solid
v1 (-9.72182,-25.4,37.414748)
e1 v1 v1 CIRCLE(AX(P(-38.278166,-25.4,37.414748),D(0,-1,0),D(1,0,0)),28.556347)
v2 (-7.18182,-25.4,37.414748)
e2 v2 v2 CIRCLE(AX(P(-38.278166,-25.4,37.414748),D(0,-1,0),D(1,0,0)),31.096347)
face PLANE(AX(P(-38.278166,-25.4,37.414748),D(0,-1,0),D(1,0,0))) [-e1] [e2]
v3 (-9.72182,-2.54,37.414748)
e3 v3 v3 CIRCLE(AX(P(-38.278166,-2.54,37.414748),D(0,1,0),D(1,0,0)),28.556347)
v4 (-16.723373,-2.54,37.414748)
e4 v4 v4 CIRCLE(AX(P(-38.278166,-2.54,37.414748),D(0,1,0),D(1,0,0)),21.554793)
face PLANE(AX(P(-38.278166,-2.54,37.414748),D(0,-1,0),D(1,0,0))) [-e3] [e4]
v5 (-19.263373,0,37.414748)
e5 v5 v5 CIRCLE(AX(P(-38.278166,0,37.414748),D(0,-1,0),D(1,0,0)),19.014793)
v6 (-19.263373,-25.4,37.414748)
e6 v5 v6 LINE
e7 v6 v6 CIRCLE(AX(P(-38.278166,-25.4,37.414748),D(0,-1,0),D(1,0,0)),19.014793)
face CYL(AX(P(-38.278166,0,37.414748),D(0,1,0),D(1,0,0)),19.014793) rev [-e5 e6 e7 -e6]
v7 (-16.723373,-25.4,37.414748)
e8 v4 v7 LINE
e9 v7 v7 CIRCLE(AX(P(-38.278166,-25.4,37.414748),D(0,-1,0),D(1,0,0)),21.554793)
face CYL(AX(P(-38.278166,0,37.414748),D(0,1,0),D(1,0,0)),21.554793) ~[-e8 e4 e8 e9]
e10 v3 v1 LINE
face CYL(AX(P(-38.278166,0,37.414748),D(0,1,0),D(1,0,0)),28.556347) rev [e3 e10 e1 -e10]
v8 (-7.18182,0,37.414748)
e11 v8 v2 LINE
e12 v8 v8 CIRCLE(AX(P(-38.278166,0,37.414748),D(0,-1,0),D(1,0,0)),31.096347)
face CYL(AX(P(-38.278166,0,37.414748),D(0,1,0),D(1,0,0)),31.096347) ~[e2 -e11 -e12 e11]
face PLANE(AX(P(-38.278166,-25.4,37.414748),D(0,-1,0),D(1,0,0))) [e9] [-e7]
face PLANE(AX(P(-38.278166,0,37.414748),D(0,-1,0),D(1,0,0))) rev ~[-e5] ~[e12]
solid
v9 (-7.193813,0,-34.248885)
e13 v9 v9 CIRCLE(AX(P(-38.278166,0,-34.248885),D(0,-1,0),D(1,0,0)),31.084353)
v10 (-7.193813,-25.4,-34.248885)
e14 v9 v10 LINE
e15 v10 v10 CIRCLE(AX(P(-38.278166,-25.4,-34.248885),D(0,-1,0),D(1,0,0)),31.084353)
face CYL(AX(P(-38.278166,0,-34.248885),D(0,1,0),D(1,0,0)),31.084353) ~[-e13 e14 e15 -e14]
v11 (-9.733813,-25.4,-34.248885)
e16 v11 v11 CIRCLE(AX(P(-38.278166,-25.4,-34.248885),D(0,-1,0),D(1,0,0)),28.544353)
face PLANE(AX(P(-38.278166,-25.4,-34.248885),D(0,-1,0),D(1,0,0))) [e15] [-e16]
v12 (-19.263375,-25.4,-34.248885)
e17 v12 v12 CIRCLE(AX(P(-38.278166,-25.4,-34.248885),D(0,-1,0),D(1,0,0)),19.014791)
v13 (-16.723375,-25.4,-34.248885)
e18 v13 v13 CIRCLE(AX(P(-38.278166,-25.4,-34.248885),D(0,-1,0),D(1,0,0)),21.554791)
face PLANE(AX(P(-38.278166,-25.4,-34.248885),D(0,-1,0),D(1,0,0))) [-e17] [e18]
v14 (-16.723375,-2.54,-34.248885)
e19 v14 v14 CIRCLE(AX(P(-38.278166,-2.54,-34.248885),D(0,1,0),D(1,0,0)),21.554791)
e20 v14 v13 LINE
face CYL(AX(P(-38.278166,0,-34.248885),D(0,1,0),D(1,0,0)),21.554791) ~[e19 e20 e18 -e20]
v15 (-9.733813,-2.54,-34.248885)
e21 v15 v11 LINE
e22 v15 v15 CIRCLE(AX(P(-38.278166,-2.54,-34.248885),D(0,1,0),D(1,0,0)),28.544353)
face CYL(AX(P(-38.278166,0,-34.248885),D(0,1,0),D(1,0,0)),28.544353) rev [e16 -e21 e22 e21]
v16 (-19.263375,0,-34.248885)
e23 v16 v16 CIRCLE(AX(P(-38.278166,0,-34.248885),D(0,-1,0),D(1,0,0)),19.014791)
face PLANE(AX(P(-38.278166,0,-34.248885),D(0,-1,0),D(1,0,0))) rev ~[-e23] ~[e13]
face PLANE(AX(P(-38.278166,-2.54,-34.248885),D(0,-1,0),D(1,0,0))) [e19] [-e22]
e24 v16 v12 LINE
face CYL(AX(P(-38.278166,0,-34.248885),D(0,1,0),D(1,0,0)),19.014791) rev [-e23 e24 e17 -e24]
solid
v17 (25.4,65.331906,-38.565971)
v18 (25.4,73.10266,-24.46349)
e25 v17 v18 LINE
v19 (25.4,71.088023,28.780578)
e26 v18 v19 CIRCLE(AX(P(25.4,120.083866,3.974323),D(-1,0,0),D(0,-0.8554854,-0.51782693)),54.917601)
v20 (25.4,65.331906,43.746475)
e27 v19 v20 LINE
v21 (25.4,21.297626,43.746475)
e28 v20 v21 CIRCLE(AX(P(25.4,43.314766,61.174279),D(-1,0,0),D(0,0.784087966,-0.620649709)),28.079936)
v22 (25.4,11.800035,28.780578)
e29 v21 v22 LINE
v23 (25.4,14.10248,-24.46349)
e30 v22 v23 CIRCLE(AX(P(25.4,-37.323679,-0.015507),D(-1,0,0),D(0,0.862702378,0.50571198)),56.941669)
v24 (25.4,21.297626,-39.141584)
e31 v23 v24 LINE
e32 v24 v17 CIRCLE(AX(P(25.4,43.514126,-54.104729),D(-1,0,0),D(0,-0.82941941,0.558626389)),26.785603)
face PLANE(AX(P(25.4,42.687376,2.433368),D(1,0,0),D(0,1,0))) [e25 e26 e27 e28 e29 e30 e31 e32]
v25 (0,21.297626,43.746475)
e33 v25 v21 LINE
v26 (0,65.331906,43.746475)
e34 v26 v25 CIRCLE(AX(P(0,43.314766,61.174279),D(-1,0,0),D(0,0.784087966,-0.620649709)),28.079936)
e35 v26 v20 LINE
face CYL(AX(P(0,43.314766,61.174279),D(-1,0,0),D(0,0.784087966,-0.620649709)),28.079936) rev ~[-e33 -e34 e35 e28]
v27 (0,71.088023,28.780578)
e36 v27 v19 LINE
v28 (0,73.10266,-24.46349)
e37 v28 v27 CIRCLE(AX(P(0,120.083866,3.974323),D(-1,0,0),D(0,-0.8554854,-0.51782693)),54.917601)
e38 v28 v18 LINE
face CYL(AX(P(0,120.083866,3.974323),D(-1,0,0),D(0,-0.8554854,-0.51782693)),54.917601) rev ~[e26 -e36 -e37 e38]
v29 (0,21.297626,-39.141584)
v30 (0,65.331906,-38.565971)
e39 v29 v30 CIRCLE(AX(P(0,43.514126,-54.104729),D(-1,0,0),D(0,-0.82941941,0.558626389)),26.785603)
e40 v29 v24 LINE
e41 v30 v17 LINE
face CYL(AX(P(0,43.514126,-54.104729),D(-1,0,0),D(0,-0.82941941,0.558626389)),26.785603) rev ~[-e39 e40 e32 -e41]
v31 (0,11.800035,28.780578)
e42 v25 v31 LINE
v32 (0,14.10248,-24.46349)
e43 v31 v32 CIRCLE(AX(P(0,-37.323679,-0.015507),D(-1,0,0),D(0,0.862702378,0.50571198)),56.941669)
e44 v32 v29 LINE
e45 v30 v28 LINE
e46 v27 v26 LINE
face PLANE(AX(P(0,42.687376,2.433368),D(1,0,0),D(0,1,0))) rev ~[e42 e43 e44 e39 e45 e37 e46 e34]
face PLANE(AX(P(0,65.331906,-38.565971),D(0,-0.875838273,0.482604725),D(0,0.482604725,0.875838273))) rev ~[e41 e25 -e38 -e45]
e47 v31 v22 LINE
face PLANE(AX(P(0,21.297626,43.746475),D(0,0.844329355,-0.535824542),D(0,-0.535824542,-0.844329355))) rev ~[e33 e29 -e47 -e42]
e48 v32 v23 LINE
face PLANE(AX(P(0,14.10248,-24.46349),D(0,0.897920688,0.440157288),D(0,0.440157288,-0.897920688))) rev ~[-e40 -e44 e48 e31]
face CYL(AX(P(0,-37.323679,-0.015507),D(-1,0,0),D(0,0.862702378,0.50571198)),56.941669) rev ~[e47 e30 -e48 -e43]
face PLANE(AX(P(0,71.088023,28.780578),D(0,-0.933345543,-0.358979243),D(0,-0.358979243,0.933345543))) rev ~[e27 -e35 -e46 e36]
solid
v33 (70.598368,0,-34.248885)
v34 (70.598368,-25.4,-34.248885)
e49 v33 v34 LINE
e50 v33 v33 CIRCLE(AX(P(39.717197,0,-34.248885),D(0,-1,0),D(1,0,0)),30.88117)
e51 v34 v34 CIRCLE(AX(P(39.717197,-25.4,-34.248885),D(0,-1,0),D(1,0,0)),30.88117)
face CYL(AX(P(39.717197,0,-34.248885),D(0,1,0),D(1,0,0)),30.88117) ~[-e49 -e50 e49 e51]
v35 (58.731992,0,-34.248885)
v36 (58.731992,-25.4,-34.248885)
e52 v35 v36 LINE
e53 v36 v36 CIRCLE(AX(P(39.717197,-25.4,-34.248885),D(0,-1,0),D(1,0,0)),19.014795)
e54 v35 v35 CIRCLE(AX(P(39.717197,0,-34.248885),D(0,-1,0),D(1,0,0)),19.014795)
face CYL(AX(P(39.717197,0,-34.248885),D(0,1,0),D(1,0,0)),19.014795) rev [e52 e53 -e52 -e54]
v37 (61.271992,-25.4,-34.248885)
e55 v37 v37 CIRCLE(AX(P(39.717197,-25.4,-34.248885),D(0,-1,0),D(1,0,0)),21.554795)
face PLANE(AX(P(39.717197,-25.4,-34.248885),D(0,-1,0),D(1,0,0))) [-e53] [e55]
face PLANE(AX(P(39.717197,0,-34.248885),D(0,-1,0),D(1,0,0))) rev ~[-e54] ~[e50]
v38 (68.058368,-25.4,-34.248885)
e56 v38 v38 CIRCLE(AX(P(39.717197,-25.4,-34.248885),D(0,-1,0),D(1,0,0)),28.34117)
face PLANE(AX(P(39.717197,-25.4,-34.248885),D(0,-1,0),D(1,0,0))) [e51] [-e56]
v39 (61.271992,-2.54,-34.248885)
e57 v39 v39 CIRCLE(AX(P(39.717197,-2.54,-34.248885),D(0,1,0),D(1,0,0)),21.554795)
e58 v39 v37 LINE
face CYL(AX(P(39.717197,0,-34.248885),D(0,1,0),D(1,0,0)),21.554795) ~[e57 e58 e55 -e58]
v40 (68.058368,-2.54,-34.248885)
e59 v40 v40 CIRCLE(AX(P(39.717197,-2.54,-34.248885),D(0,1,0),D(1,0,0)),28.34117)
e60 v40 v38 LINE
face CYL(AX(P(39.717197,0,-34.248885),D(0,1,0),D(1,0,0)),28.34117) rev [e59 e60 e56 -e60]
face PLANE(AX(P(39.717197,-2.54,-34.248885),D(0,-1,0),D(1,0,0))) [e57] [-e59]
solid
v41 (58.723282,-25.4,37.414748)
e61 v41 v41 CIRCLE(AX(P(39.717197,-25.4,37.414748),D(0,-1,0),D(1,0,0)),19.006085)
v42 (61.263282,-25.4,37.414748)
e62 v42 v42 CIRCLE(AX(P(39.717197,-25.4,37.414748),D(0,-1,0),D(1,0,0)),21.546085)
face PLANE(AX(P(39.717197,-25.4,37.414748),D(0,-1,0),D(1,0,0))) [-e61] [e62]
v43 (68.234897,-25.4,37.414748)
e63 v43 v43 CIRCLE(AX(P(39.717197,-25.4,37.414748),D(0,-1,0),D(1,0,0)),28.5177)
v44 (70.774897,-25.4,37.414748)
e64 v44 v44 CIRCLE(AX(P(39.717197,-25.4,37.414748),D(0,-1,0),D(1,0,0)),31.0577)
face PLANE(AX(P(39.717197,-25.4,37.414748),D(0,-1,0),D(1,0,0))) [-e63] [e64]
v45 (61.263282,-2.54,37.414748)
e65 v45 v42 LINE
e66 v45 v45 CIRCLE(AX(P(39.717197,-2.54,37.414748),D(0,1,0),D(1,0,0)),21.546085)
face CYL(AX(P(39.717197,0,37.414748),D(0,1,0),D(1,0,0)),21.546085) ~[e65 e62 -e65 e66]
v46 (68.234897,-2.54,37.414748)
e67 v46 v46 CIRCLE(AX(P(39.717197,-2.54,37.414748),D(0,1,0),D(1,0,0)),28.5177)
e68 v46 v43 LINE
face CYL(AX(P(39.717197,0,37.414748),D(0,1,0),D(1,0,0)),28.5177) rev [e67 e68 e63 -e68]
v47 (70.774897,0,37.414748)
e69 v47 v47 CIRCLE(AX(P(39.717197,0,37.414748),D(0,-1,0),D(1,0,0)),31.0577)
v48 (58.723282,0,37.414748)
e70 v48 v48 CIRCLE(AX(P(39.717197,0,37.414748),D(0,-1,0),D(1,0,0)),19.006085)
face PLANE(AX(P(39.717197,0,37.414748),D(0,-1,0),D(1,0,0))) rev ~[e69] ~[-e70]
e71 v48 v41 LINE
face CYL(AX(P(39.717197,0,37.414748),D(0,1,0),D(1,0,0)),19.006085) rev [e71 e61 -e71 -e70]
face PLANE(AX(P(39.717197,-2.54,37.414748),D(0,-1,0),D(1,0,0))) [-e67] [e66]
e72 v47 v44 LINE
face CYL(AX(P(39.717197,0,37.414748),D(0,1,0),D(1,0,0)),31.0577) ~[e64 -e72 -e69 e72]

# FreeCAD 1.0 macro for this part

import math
import FreeCAD as App
import Part
import Sketcher
Q = App.Units.Quantity


def faces_at(feature, points):
    """Names of the faces that lie closest to the given points."""
    faces = feature.Shape.Faces
    near = lambda p: min(range(len(faces)), key=lambda i: faces[i].distToShape(Part.Vertex(*p))[0])
    return sorted({f"Face{near(p) + 1}" for p in points})

doc = App.newDocument("Part")
body = doc.addObject("PartDesign::Body", "Body")

sketch1 = doc.addObject("Sketcher::SketchObject", "Sketch")
body.addObject(sketch1)
sketch1.AttachmentSupport = (doc.XZ_Plane, [""])
sketch1.MapMode = "FlatFace"
sketch1.addGeometry(Part.Circle(App.Vector(-38, 37, 0), App.Vector(0, 0, 1), 31), False)
sketch1.addGeometry(Part.Circle(App.Vector(-38, 37, 0), App.Vector(0, 0, 1), 19), False)
sketch1.addConstraint(Sketcher.Constraint("Coincident", 1, 3, 0, 3))
sketch1.addConstraint(Sketcher.Constraint("Diameter", 0, 62.192693))
sketch1.addConstraint(Sketcher.Constraint("Diameter", 1, 38.029586))
sketch1.addConstraint(Sketcher.Constraint("DistanceY", -1, 1, 0, 3, 37.414748))
sketch1.addConstraint(Sketcher.Constraint("DistanceX", 0, 3, -1, 1, 38.278166))
pad1 = doc.addObject("PartDesign::Pad", "Pad")
body.addObject(pad1)
pad1.Profile = sketch1
pad1.Length = Q("1 in")
doc.recompute()

thickness = doc.addObject("PartDesign::Thickness", "Thickness")
body.addObject(thickness)
thickness.Base = (pad1, faces_at(pad1, [(-63.155, -25.4, 37.415)]))
thickness.Value = Q("0.1 in")
thickness.Reversed = True
thickness.Join = "Arc"
body2 = doc.addObject("PartDesign::Body", "Body001")

sketch2 = doc.addObject("Sketcher::SketchObject", "Sketch001")
body2.addObject(sketch2)
sketch2.AttachmentSupport = (doc.getObject("XZ_Plane001"), [""])
sketch2.MapMode = "FlatFace"
sketch2.addGeometry(Part.Circle(App.Vector(40, 37, 0), App.Vector(0, 0, 1), 31), False)
sketch2.addGeometry(Part.Circle(App.Vector(40, 37, 0), App.Vector(0, 0, 1), 19), False)
sketch2.addConstraint(Sketcher.Constraint("Coincident", 1, 3, 0, 3))
sketch2.addConstraint(Sketcher.Constraint("Diameter", 0, 62.115399))
sketch2.addConstraint(Sketcher.Constraint("Diameter", 1, 38.012169))
sketch2.addConstraint(Sketcher.Constraint("DistanceY", -1, 1, 0, 3, 37.414748))
sketch2.addConstraint(Sketcher.Constraint("DistanceX", -1, 1, 0, 3, 39.717197))
pad2 = doc.addObject("PartDesign::Pad", "Pad001")
body2.addObject(pad2)
pad2.Profile = sketch2
pad2.Length = Q("1 in")
doc.recompute()

thickness2 = doc.addObject("PartDesign::Thickness", "Thickness001")
body2.addObject(thickness2)
thickness2.Base = (pad2, faces_at(pad2, [(14.871, -25.4, 37.415)]))
thickness2.Value = Q("0.1 in")
thickness2.Reversed = True
thickness2.Join = "Arc"
body3 = doc.addObject("PartDesign::Body", "Body002")

sketch3 = doc.addObject("Sketcher::SketchObject", "Sketch002")
body3.addObject(sketch3)
sketch3.AttachmentSupport = (doc.getObject("XZ_Plane002"), [""])
sketch3.MapMode = "FlatFace"
sketch3.addGeometry(Part.Circle(App.Vector(40, -34, 0), App.Vector(0, 0, 1), 31), False)
sketch3.addGeometry(Part.Circle(App.Vector(40, -34, 0), App.Vector(0, 0, 1), 19), False)
sketch3.addConstraint(Sketcher.Constraint("Coincident", 1, 3, 0, 3))
sketch3.addConstraint(Sketcher.Constraint("Diameter", 0, 61.762341))
sketch3.addConstraint(Sketcher.Constraint("Diameter", 1, 38.02959))
sketch3.addConstraint(Sketcher.Constraint("DistanceX", -1, 1, 0, 3, 39.717197))
sketch3.addConstraint(Sketcher.Constraint("DistanceY", 0, 3, -1, 1, 34.248885))
pad3 = doc.addObject("PartDesign::Pad", "Pad002")
body3.addObject(pad3)
pad3.Profile = sketch3
pad3.Length = Q("1 in")
doc.recompute()

thickness3 = doc.addObject("PartDesign::Thickness", "Thickness002")
body3.addObject(thickness3)
thickness3.Base = (pad3, faces_at(pad3, [(15.012, -25.4, -34.249)]))
thickness3.Value = Q("0.1 in")
thickness3.Reversed = True
thickness3.Join = "Arc"
body4 = doc.addObject("PartDesign::Body", "Body003")

sketch4 = doc.addObject("Sketcher::SketchObject", "Sketch003")
body4.addObject(sketch4)
sketch4.AttachmentSupport = (doc.getObject("XZ_Plane003"), [""])
sketch4.MapMode = "FlatFace"
sketch4.addGeometry(Part.Circle(App.Vector(-38, -34, 0), App.Vector(0, 0, 1), 31), False)
sketch4.addGeometry(Part.Circle(App.Vector(-38, -34, 0), App.Vector(0, 0, 1), 19), False)
sketch4.addConstraint(Sketcher.Constraint("Coincident", 1, 3, 0, 3))
sketch4.addConstraint(Sketcher.Constraint("Diameter", 0, 62.168706))
sketch4.addConstraint(Sketcher.Constraint("Diameter", 1, 38.029583))
sketch4.addConstraint(Sketcher.Constraint("DistanceX", 0, 3, -1, 1, 38.278166))
sketch4.addConstraint(Sketcher.Constraint("DistanceY", 0, 3, -1, 1, 34.248885))
pad4 = doc.addObject("PartDesign::Pad", "Pad003")
body4.addObject(pad4)
pad4.Profile = sketch4
pad4.Length = Q("1 in")
doc.recompute()

thickness4 = doc.addObject("PartDesign::Thickness", "Thickness003")
body4.addObject(thickness4)
thickness4.Base = (pad4, faces_at(pad4, [(-63.146, -25.4, -34.249)]))
thickness4.Value = Q("0.1 in")
thickness4.Reversed = True
thickness4.Join = "Arc"
body5 = doc.addObject("PartDesign::Body", "Body004")

sketch5 = doc.addObject("Sketcher::SketchObject", "Sketch004")
body5.addObject(sketch5)
sketch5.AttachmentSupport = (doc.getObject("YZ_Plane004"), [""])
sketch5.MapMode = "FlatFace"
sketch5.addGeometry(Part.ArcOfCircle(Part.Circle(App.Vector(43, 61, 0), App.Vector(0, 0, 1), 28), math.radians(-142), math.radians(-38)), False)
sketch5.addGeometry(Part.LineSegment(App.Vector(21, 44, 0), App.Vector(12, 29, 0)), False)
sketch5.addGeometry(Part.ArcOfCircle(Part.Circle(App.Vector(-37, 0, 0), App.Vector(0, 0, 1), 57), math.radians(-25), math.radians(30)), False)
sketch5.addGeometry(Part.LineSegment(App.Vector(14, -24, 0), App.Vector(21, -39, 0)), False)
sketch5.addGeometry(Part.ArcOfCircle(Part.Circle(App.Vector(44, -54, 0), App.Vector(0, 0, 1), 27), math.radians(35), math.radians(146)), False)
sketch5.addGeometry(Part.LineSegment(App.Vector(65, -39, 0), App.Vector(73, -24, 0)), False)
sketch5.addGeometry(Part.ArcOfCircle(Part.Circle(App.Vector(120, 4, 0), App.Vector(0, 0, 1), 55), math.radians(153), math.radians(211)), False)
sketch5.addGeometry(Part.LineSegment(App.Vector(71, 29, 0), App.Vector(65, 44, 0)), False)
sketch5.addConstraint(Sketcher.Constraint("Coincident", 0, 1, 1, 1))
sketch5.addConstraint(Sketcher.Constraint("Coincident", 1, 2, 2, 2))
sketch5.addConstraint(Sketcher.Constraint("Coincident", 2, 1, 3, 1))
sketch5.addConstraint(Sketcher.Constraint("Coincident", 3, 2, 4, 2))
sketch5.addConstraint(Sketcher.Constraint("Coincident", 4, 1, 5, 1))
sketch5.addConstraint(Sketcher.Constraint("Coincident", 5, 2, 6, 2))
sketch5.addConstraint(Sketcher.Constraint("Coincident", 6, 1, 7, 1))
sketch5.addConstraint(Sketcher.Constraint("Coincident", 7, 2, 0, 2))
sketch5.addConstraint(Sketcher.Constraint("Horizontal", 2, 1, 5, 2))
sketch5.addConstraint(Sketcher.Constraint("Horizontal", 1, 2, 6, 1))
sketch5.addConstraint(Sketcher.Constraint("Horizontal", 0, 1, 7, 2))
sketch5.addConstraint(Sketcher.Constraint("Vertical", 0, 1, 3, 2))
sketch5.addConstraint(Sketcher.Constraint("Vertical", 4, 1, 7, 2))
sketch5.addConstraint(Sketcher.Constraint("Radius", 6, 54.917601))
sketch5.addConstraint(Sketcher.Constraint("Radius", 2, 56.941669))
sketch5.addConstraint(Sketcher.Constraint("Radius", 0, 28.079936))
sketch5.addConstraint(Sketcher.Constraint("Radius", 4, 26.785603))
sketch5.addConstraint(Sketcher.Constraint("DistanceY", 4, 3, 3, 2, Q("0.5891002 in")))
sketch5.addConstraint(Sketcher.Constraint("DistanceX", 0, 3, 6, 3, 76.7691))
sketch5.addConstraint(Sketcher.Constraint("DistanceY", 1, 2, 0, 3, 32.393702))
sketch5.addConstraint(Sketcher.Constraint("Distance", 1, 17.725189))
sketch5.addConstraint(Sketcher.Constraint("Distance", 3, 16.346761))
sketch5.addConstraint(Sketcher.Constraint("Distance", 7, 16.03468))
sketch5.addConstraint(Sketcher.Constraint("DistanceY", -1, 1, 0, 3, 61.174279))
sketch5.addConstraint(Sketcher.Constraint("DistanceX", 2, 3, -1, 1, 37.323679))
sketch5.addConstraint(Sketcher.Constraint("DistanceY", 4, 3, -1, 1, 54.104729))
sketch5.addConstraint(Sketcher.Constraint("DistanceX", -1, 1, 2, 1, 14.10248))
sketch5.addConstraint(Sketcher.Constraint("DistanceY", 2, 1, -1, 1, 24.46349))
pad5 = doc.addObject("PartDesign::Pad", "Pad004")
body5.addObject(pad5)
pad5.Profile = sketch5
pad5.Length = Q("1 in")

doc.recompute()
